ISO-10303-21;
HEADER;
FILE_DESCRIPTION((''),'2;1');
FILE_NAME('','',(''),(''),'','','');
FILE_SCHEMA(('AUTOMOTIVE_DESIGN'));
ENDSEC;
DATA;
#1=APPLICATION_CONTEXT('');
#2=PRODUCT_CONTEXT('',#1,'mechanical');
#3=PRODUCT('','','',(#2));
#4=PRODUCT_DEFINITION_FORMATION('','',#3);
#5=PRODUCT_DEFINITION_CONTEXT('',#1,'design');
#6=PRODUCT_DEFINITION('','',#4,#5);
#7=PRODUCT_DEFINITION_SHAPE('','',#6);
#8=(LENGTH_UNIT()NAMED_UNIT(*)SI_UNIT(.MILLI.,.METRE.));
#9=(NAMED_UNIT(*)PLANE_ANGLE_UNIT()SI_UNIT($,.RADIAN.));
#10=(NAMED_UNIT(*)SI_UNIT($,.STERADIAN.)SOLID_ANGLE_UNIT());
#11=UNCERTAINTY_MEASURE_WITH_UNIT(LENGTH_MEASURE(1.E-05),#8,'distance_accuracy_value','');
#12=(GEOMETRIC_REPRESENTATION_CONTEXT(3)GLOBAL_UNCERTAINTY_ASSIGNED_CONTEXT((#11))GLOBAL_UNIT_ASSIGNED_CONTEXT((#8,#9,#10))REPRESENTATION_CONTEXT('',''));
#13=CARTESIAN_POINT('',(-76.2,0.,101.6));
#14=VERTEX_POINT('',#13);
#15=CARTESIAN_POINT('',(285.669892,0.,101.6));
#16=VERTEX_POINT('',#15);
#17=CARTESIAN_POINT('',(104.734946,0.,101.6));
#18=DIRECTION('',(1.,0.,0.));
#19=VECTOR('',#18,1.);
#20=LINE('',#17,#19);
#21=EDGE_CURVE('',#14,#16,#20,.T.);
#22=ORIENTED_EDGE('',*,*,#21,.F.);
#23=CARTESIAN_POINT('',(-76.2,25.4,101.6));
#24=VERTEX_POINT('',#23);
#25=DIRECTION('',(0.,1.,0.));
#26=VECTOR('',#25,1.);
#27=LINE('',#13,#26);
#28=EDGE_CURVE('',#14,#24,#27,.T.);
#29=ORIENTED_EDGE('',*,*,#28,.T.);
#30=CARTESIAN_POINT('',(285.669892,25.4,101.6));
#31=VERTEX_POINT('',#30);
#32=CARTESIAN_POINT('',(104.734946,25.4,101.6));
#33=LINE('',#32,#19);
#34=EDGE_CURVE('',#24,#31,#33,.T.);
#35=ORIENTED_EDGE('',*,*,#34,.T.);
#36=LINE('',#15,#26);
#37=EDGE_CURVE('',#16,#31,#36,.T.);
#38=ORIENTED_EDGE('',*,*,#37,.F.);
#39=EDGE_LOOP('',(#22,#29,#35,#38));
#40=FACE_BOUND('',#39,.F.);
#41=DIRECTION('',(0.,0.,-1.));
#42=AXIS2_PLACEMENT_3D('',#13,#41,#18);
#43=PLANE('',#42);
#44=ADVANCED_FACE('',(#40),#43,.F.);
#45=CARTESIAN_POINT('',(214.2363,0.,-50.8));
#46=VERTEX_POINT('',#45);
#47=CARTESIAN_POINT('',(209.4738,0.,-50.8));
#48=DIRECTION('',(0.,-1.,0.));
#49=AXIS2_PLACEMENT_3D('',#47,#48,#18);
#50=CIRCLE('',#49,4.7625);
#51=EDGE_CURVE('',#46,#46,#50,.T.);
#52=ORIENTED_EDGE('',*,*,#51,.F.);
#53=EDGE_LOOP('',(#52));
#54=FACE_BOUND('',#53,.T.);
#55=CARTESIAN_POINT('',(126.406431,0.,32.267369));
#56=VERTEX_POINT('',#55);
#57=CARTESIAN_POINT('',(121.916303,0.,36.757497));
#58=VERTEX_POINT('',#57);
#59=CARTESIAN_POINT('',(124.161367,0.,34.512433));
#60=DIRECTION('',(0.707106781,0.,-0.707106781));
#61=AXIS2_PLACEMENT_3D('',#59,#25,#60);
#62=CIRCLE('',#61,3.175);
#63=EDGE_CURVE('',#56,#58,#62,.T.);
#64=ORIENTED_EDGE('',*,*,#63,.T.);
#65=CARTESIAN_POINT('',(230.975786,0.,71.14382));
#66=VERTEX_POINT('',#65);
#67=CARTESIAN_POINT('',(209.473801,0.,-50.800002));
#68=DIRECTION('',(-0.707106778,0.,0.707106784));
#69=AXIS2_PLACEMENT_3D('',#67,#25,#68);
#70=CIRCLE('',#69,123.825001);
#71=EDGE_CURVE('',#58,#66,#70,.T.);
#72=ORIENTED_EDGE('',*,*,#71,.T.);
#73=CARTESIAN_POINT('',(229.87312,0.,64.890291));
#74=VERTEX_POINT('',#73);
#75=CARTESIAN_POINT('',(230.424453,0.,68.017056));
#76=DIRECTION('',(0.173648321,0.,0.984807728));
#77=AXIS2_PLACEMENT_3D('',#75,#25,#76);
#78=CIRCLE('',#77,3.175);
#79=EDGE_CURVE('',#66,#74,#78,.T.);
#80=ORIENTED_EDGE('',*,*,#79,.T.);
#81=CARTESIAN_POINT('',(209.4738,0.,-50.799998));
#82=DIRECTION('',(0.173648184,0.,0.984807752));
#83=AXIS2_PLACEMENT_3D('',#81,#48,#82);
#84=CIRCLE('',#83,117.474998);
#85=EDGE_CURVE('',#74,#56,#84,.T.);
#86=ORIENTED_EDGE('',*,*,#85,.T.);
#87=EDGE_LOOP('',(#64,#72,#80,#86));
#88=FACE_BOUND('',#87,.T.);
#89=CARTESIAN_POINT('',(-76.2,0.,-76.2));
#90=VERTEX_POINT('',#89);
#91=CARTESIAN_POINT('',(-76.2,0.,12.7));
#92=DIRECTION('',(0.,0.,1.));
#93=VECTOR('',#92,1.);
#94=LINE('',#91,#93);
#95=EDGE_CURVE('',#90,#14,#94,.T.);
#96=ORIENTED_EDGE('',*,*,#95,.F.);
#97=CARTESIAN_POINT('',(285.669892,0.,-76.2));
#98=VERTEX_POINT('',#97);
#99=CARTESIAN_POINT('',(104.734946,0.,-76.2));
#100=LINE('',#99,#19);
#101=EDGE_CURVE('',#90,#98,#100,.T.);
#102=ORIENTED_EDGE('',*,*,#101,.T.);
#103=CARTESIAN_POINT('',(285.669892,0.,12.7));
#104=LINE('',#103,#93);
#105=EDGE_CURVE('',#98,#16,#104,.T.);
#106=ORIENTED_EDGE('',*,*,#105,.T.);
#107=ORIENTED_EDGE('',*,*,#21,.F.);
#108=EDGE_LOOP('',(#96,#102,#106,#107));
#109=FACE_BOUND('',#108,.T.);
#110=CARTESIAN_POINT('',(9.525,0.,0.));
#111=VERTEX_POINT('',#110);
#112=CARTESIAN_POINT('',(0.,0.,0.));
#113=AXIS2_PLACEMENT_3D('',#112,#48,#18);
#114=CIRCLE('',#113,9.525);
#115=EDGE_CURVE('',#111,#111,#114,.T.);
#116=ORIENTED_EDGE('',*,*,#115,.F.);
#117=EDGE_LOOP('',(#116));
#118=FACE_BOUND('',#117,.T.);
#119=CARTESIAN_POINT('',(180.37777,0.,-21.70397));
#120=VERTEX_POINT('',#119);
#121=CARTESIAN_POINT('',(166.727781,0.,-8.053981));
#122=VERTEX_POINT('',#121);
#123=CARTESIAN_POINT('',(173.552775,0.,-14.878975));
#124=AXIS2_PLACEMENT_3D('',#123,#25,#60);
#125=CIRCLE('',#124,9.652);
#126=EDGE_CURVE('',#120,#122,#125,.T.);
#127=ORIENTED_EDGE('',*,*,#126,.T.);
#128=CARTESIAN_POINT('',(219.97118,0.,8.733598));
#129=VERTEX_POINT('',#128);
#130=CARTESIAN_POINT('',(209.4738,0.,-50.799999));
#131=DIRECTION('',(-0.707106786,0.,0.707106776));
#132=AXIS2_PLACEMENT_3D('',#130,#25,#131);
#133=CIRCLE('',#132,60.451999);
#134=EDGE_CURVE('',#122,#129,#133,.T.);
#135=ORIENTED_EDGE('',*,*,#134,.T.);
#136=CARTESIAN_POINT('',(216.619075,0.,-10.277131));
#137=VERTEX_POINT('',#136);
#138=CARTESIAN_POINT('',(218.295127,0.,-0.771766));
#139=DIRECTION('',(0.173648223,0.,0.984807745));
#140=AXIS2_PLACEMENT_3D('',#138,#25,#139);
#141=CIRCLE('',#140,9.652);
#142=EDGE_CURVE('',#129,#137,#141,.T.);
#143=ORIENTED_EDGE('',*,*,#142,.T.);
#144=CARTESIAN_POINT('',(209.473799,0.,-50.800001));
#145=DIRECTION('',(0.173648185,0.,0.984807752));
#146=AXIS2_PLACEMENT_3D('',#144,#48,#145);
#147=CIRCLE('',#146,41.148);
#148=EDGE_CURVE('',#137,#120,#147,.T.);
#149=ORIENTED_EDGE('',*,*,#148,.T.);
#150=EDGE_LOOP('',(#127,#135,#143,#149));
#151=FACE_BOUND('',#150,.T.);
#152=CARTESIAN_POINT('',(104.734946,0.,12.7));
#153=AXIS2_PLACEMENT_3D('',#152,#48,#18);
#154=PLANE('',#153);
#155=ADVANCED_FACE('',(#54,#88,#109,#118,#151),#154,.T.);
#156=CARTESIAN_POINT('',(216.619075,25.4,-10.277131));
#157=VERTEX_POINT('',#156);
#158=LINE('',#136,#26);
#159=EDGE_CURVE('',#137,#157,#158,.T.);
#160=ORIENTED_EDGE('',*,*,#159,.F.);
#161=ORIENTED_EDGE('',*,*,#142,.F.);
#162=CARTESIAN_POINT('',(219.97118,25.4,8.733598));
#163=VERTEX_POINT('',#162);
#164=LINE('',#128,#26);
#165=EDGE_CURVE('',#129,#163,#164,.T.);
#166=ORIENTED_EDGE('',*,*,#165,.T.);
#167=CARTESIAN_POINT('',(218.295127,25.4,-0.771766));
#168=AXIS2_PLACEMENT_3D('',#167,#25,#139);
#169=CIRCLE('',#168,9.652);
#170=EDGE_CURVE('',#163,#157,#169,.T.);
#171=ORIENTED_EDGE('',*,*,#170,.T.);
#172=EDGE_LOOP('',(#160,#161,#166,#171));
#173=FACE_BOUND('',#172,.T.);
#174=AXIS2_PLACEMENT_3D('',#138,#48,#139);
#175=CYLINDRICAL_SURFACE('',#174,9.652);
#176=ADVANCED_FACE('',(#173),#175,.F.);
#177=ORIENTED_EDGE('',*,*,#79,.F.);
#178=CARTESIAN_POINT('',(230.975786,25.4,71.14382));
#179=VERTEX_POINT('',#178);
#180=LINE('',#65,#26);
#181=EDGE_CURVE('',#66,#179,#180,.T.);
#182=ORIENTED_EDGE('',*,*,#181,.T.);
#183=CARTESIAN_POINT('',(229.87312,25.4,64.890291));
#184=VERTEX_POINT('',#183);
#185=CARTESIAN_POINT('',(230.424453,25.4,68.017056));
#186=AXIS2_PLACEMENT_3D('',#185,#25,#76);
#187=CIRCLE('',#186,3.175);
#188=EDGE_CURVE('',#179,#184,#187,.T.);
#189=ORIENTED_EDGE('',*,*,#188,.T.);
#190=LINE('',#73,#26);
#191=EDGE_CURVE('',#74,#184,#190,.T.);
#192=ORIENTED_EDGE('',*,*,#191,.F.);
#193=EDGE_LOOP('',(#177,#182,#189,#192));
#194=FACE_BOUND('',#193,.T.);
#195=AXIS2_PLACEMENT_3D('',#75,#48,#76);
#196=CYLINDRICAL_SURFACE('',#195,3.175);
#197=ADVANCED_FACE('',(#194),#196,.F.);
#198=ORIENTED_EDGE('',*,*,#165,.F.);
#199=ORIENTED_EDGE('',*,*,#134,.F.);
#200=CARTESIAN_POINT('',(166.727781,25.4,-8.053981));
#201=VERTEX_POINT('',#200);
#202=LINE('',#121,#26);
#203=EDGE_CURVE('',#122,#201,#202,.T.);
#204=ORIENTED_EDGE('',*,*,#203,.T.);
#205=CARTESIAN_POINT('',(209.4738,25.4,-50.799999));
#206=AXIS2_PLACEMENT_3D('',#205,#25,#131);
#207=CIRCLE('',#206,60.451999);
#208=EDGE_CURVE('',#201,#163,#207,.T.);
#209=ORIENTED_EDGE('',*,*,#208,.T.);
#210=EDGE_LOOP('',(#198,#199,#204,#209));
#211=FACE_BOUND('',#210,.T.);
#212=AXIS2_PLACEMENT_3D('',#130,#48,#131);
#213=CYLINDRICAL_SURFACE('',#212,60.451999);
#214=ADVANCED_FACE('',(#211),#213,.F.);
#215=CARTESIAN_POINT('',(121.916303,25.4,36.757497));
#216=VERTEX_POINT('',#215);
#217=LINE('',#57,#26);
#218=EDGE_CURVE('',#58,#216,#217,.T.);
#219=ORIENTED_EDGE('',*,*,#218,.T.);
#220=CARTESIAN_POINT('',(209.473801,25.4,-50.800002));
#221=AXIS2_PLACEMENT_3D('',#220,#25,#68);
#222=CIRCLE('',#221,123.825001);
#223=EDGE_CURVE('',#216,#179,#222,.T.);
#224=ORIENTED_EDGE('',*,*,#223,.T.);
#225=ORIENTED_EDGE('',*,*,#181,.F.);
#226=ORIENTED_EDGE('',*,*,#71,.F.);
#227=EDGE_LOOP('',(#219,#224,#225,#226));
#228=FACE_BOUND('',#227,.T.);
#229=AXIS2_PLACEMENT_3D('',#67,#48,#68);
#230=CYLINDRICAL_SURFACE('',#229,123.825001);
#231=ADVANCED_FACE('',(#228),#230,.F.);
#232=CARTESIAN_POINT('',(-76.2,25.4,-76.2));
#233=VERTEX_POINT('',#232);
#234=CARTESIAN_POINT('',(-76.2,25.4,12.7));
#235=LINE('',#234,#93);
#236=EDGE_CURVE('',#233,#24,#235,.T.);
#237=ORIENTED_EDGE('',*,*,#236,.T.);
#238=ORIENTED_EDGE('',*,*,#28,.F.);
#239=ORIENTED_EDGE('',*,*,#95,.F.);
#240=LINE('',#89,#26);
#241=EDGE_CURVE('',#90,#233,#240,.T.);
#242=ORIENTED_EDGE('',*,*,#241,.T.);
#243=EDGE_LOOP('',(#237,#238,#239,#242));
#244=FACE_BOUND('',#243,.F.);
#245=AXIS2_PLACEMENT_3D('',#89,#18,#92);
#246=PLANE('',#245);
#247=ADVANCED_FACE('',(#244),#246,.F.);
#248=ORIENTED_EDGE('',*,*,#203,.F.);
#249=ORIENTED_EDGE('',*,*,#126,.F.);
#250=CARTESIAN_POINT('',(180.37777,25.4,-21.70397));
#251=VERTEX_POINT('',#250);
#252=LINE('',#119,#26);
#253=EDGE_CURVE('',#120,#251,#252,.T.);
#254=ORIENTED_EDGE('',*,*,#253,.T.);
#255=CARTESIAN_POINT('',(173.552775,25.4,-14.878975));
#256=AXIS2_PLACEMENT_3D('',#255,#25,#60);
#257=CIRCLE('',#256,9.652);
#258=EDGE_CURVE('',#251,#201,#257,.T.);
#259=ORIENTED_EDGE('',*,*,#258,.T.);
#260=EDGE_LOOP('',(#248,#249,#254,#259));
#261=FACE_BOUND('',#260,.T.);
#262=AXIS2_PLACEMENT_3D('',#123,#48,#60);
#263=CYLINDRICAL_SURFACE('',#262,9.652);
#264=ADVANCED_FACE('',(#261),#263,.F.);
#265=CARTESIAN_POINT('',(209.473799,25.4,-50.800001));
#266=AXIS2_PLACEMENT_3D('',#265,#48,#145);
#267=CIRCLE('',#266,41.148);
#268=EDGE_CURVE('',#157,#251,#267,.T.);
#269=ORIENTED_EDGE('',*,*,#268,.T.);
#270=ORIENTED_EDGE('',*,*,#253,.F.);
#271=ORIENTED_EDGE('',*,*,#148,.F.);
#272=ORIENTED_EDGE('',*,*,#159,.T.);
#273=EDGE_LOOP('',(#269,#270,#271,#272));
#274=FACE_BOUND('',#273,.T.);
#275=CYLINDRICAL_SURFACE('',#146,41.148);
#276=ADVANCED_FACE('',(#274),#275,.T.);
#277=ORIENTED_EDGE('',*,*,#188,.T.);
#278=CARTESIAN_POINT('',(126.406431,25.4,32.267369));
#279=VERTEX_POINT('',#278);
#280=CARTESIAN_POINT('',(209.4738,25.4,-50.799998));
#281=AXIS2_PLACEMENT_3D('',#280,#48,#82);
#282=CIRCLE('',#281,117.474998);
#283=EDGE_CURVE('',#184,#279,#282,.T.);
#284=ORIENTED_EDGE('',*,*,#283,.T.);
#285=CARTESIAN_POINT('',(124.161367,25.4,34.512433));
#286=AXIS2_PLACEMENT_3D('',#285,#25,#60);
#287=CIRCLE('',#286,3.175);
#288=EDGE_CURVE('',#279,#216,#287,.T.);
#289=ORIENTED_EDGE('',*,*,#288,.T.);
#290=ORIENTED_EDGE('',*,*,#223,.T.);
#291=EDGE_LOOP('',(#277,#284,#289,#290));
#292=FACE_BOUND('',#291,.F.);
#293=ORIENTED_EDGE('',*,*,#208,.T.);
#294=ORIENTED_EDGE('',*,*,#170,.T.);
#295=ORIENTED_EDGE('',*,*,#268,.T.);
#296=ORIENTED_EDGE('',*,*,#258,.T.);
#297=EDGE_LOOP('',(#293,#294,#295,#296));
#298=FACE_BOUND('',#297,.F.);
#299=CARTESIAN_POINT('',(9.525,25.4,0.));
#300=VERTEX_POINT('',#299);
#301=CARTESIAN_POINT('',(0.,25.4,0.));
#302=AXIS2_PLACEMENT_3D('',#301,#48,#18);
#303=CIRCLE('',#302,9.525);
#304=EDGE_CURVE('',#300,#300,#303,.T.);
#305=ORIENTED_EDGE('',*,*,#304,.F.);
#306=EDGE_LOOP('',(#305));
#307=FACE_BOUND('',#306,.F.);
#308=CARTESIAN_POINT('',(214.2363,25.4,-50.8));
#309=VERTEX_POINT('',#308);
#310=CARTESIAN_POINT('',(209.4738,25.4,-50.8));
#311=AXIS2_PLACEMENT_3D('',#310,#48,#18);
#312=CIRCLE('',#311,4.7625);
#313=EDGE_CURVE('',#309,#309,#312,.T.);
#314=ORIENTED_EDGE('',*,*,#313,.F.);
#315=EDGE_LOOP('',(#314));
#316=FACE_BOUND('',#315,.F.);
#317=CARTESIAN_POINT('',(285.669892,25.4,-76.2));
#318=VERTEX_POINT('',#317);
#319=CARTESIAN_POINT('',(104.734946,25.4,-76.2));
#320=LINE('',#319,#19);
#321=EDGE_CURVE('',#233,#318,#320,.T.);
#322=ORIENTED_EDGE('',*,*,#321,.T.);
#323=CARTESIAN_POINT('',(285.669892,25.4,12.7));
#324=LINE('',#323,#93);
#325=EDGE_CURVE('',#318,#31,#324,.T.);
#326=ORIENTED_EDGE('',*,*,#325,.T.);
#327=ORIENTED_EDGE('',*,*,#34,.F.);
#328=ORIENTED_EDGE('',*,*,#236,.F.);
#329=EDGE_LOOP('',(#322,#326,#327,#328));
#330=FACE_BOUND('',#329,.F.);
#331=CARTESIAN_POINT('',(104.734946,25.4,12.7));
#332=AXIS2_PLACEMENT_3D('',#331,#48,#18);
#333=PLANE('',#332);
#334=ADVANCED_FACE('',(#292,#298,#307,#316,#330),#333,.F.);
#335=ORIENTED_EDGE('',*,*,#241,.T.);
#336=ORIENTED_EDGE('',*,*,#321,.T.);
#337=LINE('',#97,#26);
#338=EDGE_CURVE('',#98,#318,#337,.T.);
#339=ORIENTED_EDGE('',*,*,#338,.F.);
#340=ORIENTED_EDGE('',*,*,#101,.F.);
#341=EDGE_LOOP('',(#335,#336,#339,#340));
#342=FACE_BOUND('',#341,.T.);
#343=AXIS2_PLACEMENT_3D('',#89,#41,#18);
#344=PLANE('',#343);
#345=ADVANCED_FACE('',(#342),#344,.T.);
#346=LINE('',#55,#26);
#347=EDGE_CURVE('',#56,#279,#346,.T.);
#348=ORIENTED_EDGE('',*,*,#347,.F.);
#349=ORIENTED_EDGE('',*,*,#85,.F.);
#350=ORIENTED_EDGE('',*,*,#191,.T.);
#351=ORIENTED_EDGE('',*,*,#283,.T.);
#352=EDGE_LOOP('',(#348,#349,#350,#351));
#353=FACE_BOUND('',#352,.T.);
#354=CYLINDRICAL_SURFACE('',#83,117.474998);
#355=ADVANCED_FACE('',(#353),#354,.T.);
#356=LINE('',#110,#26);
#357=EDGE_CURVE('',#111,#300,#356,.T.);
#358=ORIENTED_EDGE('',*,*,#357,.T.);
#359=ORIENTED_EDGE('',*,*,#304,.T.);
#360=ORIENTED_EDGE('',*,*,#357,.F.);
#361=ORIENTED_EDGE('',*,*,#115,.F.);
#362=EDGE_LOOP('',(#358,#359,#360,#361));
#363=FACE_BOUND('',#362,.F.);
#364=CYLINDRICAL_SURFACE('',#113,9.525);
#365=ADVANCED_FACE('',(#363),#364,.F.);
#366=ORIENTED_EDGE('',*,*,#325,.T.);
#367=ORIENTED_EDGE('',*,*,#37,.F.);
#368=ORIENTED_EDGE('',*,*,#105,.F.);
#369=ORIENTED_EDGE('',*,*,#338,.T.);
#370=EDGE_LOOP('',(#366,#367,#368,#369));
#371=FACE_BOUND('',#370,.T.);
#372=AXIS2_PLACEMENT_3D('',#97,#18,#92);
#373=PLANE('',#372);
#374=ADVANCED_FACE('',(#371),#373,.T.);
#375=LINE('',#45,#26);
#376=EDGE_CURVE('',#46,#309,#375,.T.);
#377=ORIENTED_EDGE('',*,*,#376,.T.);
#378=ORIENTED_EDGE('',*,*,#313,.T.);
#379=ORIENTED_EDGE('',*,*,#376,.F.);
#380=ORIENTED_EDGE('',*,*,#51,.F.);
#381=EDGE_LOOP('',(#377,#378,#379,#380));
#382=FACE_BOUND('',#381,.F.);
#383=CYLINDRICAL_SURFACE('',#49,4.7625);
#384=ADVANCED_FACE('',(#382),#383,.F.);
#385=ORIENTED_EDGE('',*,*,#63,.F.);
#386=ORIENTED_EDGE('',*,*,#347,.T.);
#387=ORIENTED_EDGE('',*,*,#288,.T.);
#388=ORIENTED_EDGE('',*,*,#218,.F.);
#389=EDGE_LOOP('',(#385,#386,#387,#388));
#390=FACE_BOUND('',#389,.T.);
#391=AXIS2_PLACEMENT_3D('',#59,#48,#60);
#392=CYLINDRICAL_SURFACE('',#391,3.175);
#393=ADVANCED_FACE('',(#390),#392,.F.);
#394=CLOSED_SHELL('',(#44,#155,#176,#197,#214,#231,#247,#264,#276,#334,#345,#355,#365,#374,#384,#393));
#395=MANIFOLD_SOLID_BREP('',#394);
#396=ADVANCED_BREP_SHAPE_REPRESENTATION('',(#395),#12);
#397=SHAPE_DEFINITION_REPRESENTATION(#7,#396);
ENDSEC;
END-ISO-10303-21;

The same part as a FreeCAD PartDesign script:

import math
import FreeCAD as App
import Part
import Sketcher
from FreeCAD import Vector
Q = App.Units.Quantity


def add_polygon(sketch, points):
    """Adds a closed chain of lines whose ends are joined by coincident constraints."""
    first, n = sketch.GeometryCount, len(points)
    for a, b in zip(points, points[1:] + points[:1]):
        sketch.addGeometry(Part.LineSegment(App.Vector(*a, 0), App.Vector(*b, 0)), False)
    for i in range(n):
        sketch.addConstraint(Sketcher.Constraint("Coincident", first + i, 2, first + (i + 1) % n, 1))

doc = App.newDocument("Part")
params = doc.addObject("Spreadsheet::Sheet", "Params")
for row, (alias, value) in enumerate([
    ("sketch1_diameter", "0.75 in"),
    ("sketch1_height", "7 in"),
    ("sketch1_radius", "0.38 in"),
    ("sketch1_radius2", "1.62 in"),
    ("sketch1_diameter2", "0.375 in"),
    ("pad1_length", "1 in"),
], start=1):
    params.set(f"A{row}", alias)
    params.set(f"B{row}", "=" + value)
    params.setAlias(f"B{row}", alias)

body = doc.addObject("PartDesign::Body", "Body")

# Sketch on XZ plane
sketch1 = body.newObject("Sketcher::SketchObject", "Sketch")
sketch1.AttachmentSupport = (doc.getObject("XZ_Plane"), [""])
sketch1.MapMode = "FlatFace"
add_polygon(sketch1, [(-76.2, 101.6), (-76.2, -76.2), (285.7, -76.2), (285.7, 101.6)])  # lines 0-3
sketch1.addGeometry(Part.Circle(Vector(0, 0, 0), Vector(0, 0, 1), 9.5), False)  # 4
sketch1.addGeometry(Part.Circle(Vector(209.5, -50.8, 0), Vector(0, 0, 1), 4.8), False)  # 5
sketch1.addGeometry(Part.ArcOfCircle(Part.Circle(Vector(218.3, -0.8, 0), Vector(0, 0, 1), 9.7), math.radians(-100), math.radians(80)), False)  # 6
sketch1.addGeometry(Part.ArcOfCircle(Part.Circle(Vector(209.5, -50.8, 0), Vector(0, 0, 1), 41.1), math.radians(80), math.radians(135)), False)  # 7
sketch1.addGeometry(Part.ArcOfCircle(Part.Circle(Vector(173.6, -14.9, 0), Vector(0, 0, 1), 9.7), math.radians(135), math.radians(315)), False)  # 8
sketch1.addGeometry(Part.ArcOfCircle(Part.Circle(Vector(209.5, -50.8, 0), Vector(0, 0, 1), 60.5), math.radians(80), math.radians(135)), False)  # 9
sketch1.addGeometry(Part.ArcOfCircle(Part.Circle(Vector(230.4, 68, 0), Vector(0, 0, 1), 3.2), math.radians(-100), math.radians(80)), False)  # 10
sketch1.addGeometry(Part.ArcOfCircle(Part.Circle(Vector(209.5, -50.8, 0), Vector(0, 0, 1), 117.5), math.radians(80), math.radians(135)), False)  # 11
sketch1.addGeometry(Part.ArcOfCircle(Part.Circle(Vector(124.2, 34.5, 0), Vector(0, 0, 1), 3.2), math.radians(135), math.radians(315)), False)  # 12
sketch1.addGeometry(Part.ArcOfCircle(Part.Circle(Vector(209.5, -50.8, 0), Vector(0, 0, 1), 123.8), math.radians(80), math.radians(135)), False)  # 13
sketch1.addConstraint(Sketcher.Constraint("Tangent", 6, 1, 7, 1))
sketch1.addConstraint(Sketcher.Constraint("Tangent", 7, 2, 8, 2))
sketch1.addConstraint(Sketcher.Constraint("Tangent", 8, 1, 9, 2))
sketch1.addConstraint(Sketcher.Constraint("Tangent", 9, 1, 6, 2))
sketch1.addConstraint(Sketcher.Constraint("Tangent", 10, 1, 11, 1))
sketch1.addConstraint(Sketcher.Constraint("Tangent", 11, 2, 12, 2))
sketch1.addConstraint(Sketcher.Constraint("Tangent", 12, 1, 13, 2))
sketch1.addConstraint(Sketcher.Constraint("Tangent", 13, 1, 10, 2))
sketch1.addConstraint(Sketcher.Constraint("Vertical", 0))
sketch1.addConstraint(Sketcher.Constraint("Horizontal", 1))
sketch1.addConstraint(Sketcher.Constraint("Vertical", 2))
sketch1.addConstraint(Sketcher.Constraint("Horizontal", 3))
sketch1.addConstraint(Sketcher.Constraint("Coincident", 4, 3, -1, 1))
sketch1.addConstraint(Sketcher.Constraint("Coincident", 7, 3, 5, 3))
sketch1.addConstraint(Sketcher.Constraint("Coincident", 9, 3, 5, 3))
sketch1.addConstraint(Sketcher.Constraint("Coincident", 11, 3, 5, 3))
sketch1.addConstraint(Sketcher.Constraint("Coincident", 13, 3, 5, 3))
sketch1.addConstraint(Sketcher.Constraint("Diameter", 4, Q("0.75 in")))
sketch1.addConstraint(Sketcher.Constraint("DistanceY", 0, 2, 0, 1, Q("7 in")))
sketch1.addConstraint(Sketcher.Constraint("Radius", 6, Q("0.38 in")))
sketch1.addConstraint(Sketcher.Constraint("Radius", 7, Q("1.62 in")))
sketch1.addConstraint(Sketcher.Constraint("Diameter", 5, Q("0.375 in")))
sketch1.addConstraint(Sketcher.Constraint("DistanceY", 5, 3, -1, 1, Q("2 in")))
sketch1.addConstraint(Sketcher.Constraint("DistanceX", 0, 2, -1, 1, Q("3 in")))
sketch1.addConstraint(Sketcher.Constraint("DistanceY", 0, 2, -1, 1, Q("3 in")))
sketch1.addConstraint(Sketcher.Constraint("Radius", 10, Q("0.125 in")))
sketch1.addConstraint(Sketcher.Constraint("Radius", 11, Q("4.6249999 in")))
sketch1.addConstraint(Sketcher.Constraint("DistanceX", -1, 1, 5, 3, Q("8.247 in")))
sketch1.addConstraint(Sketcher.Constraint("DistanceX", 1, 1, 1, 2, Q("361.869892 mm")))
sketch1.addConstraint(Sketcher.Constraint("DistanceY", -1, 1, 9, 1, Q("8.733598 mm")))
sketch1.addConstraint(Sketcher.Constraint("DistanceY", 6, 3, 12, 3, Q("35.284199 mm")))
sketch1.addConstraint(Sketcher.Constraint("DistanceX", 8, 1, 9, 1, Q("53.243399 mm")))
sketch1.addConstraint(Sketcher.Constraint("DistanceX", -1, 1, 10, 1, Q("229.87312 mm")))
sketch1.setExpression("Constraints[21]", "Params.sketch1_diameter")
sketch1.setExpression("Constraints[22]", "Params.sketch1_height")
sketch1.setExpression("Constraints[23]", "Params.sketch1_radius")
sketch1.setExpression("Constraints[24]", "Params.sketch1_radius2")
sketch1.setExpression("Constraints[25]", "Params.sketch1_diameter2")
pad1 = body.newObject("PartDesign::Pad", "Pad")
pad1.Profile = sketch1
pad1.setExpression("Length", "Params.pad1_length")
pad1.Reversed = True

doc.recompute()
